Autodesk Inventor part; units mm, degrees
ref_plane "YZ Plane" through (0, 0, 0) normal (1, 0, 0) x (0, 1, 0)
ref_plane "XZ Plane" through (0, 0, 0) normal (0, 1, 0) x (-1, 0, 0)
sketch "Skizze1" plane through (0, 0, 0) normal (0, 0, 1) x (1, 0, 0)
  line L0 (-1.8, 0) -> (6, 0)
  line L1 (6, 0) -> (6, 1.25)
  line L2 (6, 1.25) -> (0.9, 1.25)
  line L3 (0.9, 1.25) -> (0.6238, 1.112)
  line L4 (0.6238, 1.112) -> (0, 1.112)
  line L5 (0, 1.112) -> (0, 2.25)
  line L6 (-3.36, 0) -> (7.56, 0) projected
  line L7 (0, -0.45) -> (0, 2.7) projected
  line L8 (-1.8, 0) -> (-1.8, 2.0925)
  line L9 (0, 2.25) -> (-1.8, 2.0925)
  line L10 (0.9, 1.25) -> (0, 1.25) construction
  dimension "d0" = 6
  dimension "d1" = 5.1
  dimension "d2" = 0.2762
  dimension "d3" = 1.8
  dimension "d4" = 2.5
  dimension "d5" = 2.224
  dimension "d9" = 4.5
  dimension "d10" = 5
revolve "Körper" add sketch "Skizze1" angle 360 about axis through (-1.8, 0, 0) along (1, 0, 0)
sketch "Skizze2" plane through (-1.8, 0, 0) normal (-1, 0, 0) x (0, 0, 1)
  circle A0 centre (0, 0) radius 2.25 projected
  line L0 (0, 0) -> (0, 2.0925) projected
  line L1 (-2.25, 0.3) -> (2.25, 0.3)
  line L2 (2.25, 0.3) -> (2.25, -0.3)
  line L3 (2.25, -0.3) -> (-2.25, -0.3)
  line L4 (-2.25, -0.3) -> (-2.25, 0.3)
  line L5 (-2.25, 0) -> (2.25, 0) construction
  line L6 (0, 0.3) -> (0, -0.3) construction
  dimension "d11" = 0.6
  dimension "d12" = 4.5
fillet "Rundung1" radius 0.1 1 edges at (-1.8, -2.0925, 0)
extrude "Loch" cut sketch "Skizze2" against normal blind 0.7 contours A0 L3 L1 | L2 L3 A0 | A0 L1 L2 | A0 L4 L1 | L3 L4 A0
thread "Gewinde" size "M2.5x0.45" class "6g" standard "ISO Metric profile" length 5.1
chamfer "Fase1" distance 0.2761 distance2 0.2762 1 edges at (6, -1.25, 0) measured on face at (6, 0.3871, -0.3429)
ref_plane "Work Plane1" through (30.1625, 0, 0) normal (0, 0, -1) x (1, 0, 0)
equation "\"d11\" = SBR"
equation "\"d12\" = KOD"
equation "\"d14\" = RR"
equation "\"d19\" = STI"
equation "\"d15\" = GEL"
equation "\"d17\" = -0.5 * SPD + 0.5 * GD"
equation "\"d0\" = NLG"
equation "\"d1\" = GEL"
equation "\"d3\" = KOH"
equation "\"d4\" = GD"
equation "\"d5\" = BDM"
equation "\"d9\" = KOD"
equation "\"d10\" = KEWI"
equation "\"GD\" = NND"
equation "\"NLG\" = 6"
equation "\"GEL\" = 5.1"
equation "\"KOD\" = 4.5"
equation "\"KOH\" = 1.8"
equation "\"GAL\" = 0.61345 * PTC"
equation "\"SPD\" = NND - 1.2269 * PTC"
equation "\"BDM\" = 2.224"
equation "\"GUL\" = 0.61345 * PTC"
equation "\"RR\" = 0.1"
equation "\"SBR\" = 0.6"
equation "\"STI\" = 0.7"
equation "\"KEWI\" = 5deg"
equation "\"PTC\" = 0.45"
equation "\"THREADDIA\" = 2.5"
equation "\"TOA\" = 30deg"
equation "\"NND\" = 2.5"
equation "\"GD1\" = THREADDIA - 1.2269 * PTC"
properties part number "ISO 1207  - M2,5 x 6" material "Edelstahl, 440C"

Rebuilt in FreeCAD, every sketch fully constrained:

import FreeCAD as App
import Part
import Sketcher
from FreeCAD import Vector
Q = App.Units.Quantity


def edges_at(feature, points):
    """Names of the edges that pass closest to the given points."""
    edges = feature.Shape.Edges
    near = lambda p: min(range(len(edges)), key=lambda i: edges[i].distToShape(Part.Vertex(*p))[0])
    return sorted({f"Edge{near(p) + 1}" for p in points})


def add_polygon(sketch, points):
    """Adds a closed chain of lines whose ends are joined by coincident constraints."""
    first, n = sketch.GeometryCount, len(points)
    for a, b in zip(points, points[1:] + points[:1]):
        sketch.addGeometry(Part.LineSegment(App.Vector(*a, 0), App.Vector(*b, 0)), False)
    for i in range(n):
        sketch.addConstraint(Sketcher.Constraint("Coincident", first + i, 2, first + (i + 1) % n, 1))

doc = App.newDocument("Part")
body = doc.addObject("PartDesign::Body", "Body")

# Sketch on XY plane
sketch1 = body.newObject("Sketcher::SketchObject", "Sketch")
sketch1.AttachmentSupport = (doc.getObject("XY_Plane"), [""])
sketch1.MapMode = "FlatFace"
add_polygon(sketch1, [(-1.8, 2.09), (-1.8, 0), (6, 0), (6, 1.25), (0.9, 1.25), (0.62, 1.11), (0, 1.11), (0, 2.25)])  # lines 0-7
sketch1.addConstraint([
    Sketcher.Constraint("Vertical", 0),
    Sketcher.Constraint("Horizontal", 1),
    Sketcher.Constraint("Vertical", 2),
    Sketcher.Constraint("Horizontal", 3),
    Sketcher.Constraint("Horizontal", 5),
    Sketcher.Constraint("Vertical", 6),
    Sketcher.Constraint("PointOnObject", 0, 2, -1),
    Sketcher.Constraint("PointOnObject", 5, 2, -2),
    Sketcher.Constraint("DistanceX", 3, 2, 3, 1, Q("5.1 mm")),
    Sketcher.Constraint("DistanceX", -1, 1, 1, 2, Q("6 mm")),
    Sketcher.Constraint("DistanceX", 0, 2, -1, 1, Q("1.8 mm")),
    Sketcher.Constraint("Angle", 7, Q("-174.9994 deg")),
    Sketcher.Constraint("DistanceY", 3, 2, 6, 2, Q("1 mm")),
    Sketcher.Constraint("DistanceY", 2, 1, 2, 2, Q("1.25 mm")),
    Sketcher.Constraint("DistanceX", 4, 2, 3, 2, Q("0.2762 mm")),
    Sketcher.Constraint("DistanceY", 6, 1, 6, 2, Q("1.138 mm")),
])
revolution = body.newObject("PartDesign::Revolution", "Revolution")
revolution.Profile = sketch1
revolution.ReferenceAxis = (sketch1, ["H_Axis"])
revolution.Angle = 360
doc.recompute()

fillet = body.newObject("PartDesign::Fillet", "Fillet")
fillet.Base = (revolution, edges_at(revolution, [(-1.8, -2.092, 0)]))
fillet.Radius = 0.1

# Sketch on YZ plane
sketch2 = body.newObject("Sketcher::SketchObject", "Sketch001")
sketch2.AttachmentSupport = (doc.getObject("YZ_Plane"), [""])
sketch2.MapMode = "FlatFace"
sketch2.AttachmentOffset = App.Placement(Vector(0, 0, -1.8), App.Rotation())
add_polygon(sketch2, [(-0.3, 2.2), (0.3, 2.2), (0.3, -2.2), (-0.3, -2.2)])  # lines 0-3
sketch2.addConstraint([
    Sketcher.Constraint("Horizontal", 0),
    Sketcher.Constraint("Vertical", 1),
    Sketcher.Constraint("Horizontal", 2),
    Sketcher.Constraint("Vertical", 3),
    Sketcher.Constraint("Symmetric", 0, 2, 2, 2, -1, 1),
    Sketcher.Constraint("DistanceX", 0, 1, 0, 2, Q("0.6 mm")),
    Sketcher.Constraint("DistanceY", 1, 2, 1, 1, Q("4.5 mm")),
])
pocket1 = body.newObject("PartDesign::Pocket", "Pocket")
pocket1.Profile = sketch2
pocket1.Length = 0.7
pocket1.Reversed = True
doc.recompute()

chamfer = body.newObject("PartDesign::Chamfer", "Chamfer")
chamfer.Base = (pocket1, edges_at(pocket1, [(6, -1.25, 0)]))
chamfer.ChamferType = "Two distances"
chamfer.Size = 0.2761
chamfer.Size2 = 0.2762

doc.recompute()
